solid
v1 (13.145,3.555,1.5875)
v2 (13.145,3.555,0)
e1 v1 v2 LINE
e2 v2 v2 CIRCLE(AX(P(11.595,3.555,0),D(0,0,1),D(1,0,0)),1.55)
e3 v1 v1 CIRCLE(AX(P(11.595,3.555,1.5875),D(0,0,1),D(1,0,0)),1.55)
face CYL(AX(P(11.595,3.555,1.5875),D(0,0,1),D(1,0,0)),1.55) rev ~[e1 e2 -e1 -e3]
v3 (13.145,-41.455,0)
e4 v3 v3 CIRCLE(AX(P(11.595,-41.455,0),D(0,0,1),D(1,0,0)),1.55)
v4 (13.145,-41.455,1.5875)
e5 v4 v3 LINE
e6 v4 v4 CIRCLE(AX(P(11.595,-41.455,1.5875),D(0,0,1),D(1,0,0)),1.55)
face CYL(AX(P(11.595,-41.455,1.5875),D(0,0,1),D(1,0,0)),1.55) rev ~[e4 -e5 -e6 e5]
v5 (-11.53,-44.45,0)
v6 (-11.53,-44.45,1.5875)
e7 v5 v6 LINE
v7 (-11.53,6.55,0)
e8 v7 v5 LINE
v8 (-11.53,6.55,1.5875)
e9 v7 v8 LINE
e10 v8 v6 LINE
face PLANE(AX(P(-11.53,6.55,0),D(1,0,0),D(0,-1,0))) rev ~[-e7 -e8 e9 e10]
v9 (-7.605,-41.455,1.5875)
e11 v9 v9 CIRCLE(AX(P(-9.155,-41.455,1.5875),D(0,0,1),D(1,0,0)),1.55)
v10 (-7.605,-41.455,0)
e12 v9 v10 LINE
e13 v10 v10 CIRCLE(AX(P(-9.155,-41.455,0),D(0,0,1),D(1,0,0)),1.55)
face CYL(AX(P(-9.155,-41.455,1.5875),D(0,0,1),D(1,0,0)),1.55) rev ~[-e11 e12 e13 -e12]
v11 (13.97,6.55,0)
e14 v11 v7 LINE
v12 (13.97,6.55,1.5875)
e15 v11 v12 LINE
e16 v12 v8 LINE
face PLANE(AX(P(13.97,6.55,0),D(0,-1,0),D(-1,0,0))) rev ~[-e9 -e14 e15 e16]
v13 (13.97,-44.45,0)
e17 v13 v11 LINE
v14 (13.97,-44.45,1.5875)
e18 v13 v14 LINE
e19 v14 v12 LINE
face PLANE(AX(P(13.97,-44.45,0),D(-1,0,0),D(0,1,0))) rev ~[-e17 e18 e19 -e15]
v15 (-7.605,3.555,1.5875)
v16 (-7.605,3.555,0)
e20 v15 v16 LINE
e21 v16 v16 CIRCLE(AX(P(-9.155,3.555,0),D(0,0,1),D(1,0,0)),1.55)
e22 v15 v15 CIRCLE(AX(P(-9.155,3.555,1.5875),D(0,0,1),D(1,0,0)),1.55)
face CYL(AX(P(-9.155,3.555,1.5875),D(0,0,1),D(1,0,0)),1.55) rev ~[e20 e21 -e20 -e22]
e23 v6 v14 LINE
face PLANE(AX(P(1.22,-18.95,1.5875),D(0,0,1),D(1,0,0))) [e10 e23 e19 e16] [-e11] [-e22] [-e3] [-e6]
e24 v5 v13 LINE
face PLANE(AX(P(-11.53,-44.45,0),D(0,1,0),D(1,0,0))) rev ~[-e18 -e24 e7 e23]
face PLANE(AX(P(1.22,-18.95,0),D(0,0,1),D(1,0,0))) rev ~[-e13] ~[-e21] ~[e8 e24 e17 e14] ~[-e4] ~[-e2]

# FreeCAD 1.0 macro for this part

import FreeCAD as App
import Part
import Sketcher

doc = App.newDocument("Part")
body = doc.addObject("PartDesign::Body", "Body")

sketch1 = doc.addObject("Sketcher::SketchObject", "Sketch")
body.addObject(sketch1)
sketch1.AttachmentSupport = (doc.XY_Plane, [""])
sketch1.MapMode = "FlatFace"
sketch1.addGeometry([
    Part.LineSegment(App.Vector(13.97, 6.55, 0), App.Vector(-11.53, 6.55, 0)),
    Part.LineSegment(App.Vector(-11.53, 6.55, 0), App.Vector(-11.53, -44.45, 0)),
    Part.LineSegment(App.Vector(-11.53, -44.45, 0), App.Vector(13.97, -44.45, 0)),
    Part.LineSegment(App.Vector(13.97, -44.45, 0), App.Vector(13.97, 6.55, 0)),
], False)
sketch1.addConstraint([
    Sketcher.Constraint("Coincident", 0, 2, 1, 1),
    Sketcher.Constraint("Coincident", 1, 2, 2, 1),
    Sketcher.Constraint("Coincident", 2, 2, 3, 1),
    Sketcher.Constraint("Coincident", 3, 2, 0, 1),
    Sketcher.Constraint("Horizontal", 0),
    Sketcher.Constraint("Vertical", 1),
    Sketcher.Constraint("Horizontal", 2),
    Sketcher.Constraint("Vertical", 3),
    Sketcher.Constraint("DistanceY", 1, 2, 1, 1, 51.0),
    Sketcher.Constraint("DistanceX", 0, 2, 0, 1, 25.5),
    Sketcher.Constraint("DistanceX", 0, 2, -1, 1, 11.53),
    Sketcher.Constraint("DistanceY", -1, 1, 0, 2, 6.55),
])
pad1 = doc.addObject("PartDesign::Pad", "Pad")
body.addObject(pad1)
pad1.Profile = sketch1
pad1.Length = 1.5875

sketch2 = doc.addObject("Sketcher::SketchObject", "Sketch001")
body.addObject(sketch2)
sketch2.AttachmentSupport = (doc.XY_Plane, [""])
sketch2.MapMode = "FlatFace"
sketch2.AttachmentOffset = App.Placement(App.Vector(0, 0, 1.5875), App.Rotation())
sketch2.addGeometry([
    Part.Circle(App.Vector(-9.155, 3.555, 0), App.Vector(0, 0, 1), 1.55),
    Part.Circle(App.Vector(11.595, 3.555, 0), App.Vector(0, 0, 1), 1.55),
    Part.Circle(App.Vector(11.595, -41.455, 0), App.Vector(0, 0, 1), 1.55),
    Part.Circle(App.Vector(-9.155, -41.455, 0), App.Vector(0, 0, 1), 1.55),
], False)
sketch2.addConstraint([
    Sketcher.Constraint("Equal", 0, 1),
    Sketcher.Constraint("Equal", 1, 2),
    Sketcher.Constraint("Equal", 2, 3),
    Sketcher.Constraint("Horizontal", 0, 3, 1, 3),
    Sketcher.Constraint("Horizontal", 2, 3, 3, 3),
    Sketcher.Constraint("Vertical", 1, 3, 2, 3),
    Sketcher.Constraint("Vertical", 0, 3, 3, 3),
    Sketcher.Constraint("Diameter", 0, 3.1),
    Sketcher.Constraint("DistanceX", 0, 3, 1, 3, 20.75),
    Sketcher.Constraint("DistanceY", 2, 3, 1, 3, 45.01),
    Sketcher.Constraint("DistanceX", 0, 3, -1, 1, 9.155),
    Sketcher.Constraint("DistanceY", -1, 1, 0, 3, 3.555),
])
pocket1 = doc.addObject("PartDesign::Pocket", "Pocket")
body.addObject(pocket1)
pocket1.Profile = sketch2
pocket1.Length = 58.166

doc.recompute()
